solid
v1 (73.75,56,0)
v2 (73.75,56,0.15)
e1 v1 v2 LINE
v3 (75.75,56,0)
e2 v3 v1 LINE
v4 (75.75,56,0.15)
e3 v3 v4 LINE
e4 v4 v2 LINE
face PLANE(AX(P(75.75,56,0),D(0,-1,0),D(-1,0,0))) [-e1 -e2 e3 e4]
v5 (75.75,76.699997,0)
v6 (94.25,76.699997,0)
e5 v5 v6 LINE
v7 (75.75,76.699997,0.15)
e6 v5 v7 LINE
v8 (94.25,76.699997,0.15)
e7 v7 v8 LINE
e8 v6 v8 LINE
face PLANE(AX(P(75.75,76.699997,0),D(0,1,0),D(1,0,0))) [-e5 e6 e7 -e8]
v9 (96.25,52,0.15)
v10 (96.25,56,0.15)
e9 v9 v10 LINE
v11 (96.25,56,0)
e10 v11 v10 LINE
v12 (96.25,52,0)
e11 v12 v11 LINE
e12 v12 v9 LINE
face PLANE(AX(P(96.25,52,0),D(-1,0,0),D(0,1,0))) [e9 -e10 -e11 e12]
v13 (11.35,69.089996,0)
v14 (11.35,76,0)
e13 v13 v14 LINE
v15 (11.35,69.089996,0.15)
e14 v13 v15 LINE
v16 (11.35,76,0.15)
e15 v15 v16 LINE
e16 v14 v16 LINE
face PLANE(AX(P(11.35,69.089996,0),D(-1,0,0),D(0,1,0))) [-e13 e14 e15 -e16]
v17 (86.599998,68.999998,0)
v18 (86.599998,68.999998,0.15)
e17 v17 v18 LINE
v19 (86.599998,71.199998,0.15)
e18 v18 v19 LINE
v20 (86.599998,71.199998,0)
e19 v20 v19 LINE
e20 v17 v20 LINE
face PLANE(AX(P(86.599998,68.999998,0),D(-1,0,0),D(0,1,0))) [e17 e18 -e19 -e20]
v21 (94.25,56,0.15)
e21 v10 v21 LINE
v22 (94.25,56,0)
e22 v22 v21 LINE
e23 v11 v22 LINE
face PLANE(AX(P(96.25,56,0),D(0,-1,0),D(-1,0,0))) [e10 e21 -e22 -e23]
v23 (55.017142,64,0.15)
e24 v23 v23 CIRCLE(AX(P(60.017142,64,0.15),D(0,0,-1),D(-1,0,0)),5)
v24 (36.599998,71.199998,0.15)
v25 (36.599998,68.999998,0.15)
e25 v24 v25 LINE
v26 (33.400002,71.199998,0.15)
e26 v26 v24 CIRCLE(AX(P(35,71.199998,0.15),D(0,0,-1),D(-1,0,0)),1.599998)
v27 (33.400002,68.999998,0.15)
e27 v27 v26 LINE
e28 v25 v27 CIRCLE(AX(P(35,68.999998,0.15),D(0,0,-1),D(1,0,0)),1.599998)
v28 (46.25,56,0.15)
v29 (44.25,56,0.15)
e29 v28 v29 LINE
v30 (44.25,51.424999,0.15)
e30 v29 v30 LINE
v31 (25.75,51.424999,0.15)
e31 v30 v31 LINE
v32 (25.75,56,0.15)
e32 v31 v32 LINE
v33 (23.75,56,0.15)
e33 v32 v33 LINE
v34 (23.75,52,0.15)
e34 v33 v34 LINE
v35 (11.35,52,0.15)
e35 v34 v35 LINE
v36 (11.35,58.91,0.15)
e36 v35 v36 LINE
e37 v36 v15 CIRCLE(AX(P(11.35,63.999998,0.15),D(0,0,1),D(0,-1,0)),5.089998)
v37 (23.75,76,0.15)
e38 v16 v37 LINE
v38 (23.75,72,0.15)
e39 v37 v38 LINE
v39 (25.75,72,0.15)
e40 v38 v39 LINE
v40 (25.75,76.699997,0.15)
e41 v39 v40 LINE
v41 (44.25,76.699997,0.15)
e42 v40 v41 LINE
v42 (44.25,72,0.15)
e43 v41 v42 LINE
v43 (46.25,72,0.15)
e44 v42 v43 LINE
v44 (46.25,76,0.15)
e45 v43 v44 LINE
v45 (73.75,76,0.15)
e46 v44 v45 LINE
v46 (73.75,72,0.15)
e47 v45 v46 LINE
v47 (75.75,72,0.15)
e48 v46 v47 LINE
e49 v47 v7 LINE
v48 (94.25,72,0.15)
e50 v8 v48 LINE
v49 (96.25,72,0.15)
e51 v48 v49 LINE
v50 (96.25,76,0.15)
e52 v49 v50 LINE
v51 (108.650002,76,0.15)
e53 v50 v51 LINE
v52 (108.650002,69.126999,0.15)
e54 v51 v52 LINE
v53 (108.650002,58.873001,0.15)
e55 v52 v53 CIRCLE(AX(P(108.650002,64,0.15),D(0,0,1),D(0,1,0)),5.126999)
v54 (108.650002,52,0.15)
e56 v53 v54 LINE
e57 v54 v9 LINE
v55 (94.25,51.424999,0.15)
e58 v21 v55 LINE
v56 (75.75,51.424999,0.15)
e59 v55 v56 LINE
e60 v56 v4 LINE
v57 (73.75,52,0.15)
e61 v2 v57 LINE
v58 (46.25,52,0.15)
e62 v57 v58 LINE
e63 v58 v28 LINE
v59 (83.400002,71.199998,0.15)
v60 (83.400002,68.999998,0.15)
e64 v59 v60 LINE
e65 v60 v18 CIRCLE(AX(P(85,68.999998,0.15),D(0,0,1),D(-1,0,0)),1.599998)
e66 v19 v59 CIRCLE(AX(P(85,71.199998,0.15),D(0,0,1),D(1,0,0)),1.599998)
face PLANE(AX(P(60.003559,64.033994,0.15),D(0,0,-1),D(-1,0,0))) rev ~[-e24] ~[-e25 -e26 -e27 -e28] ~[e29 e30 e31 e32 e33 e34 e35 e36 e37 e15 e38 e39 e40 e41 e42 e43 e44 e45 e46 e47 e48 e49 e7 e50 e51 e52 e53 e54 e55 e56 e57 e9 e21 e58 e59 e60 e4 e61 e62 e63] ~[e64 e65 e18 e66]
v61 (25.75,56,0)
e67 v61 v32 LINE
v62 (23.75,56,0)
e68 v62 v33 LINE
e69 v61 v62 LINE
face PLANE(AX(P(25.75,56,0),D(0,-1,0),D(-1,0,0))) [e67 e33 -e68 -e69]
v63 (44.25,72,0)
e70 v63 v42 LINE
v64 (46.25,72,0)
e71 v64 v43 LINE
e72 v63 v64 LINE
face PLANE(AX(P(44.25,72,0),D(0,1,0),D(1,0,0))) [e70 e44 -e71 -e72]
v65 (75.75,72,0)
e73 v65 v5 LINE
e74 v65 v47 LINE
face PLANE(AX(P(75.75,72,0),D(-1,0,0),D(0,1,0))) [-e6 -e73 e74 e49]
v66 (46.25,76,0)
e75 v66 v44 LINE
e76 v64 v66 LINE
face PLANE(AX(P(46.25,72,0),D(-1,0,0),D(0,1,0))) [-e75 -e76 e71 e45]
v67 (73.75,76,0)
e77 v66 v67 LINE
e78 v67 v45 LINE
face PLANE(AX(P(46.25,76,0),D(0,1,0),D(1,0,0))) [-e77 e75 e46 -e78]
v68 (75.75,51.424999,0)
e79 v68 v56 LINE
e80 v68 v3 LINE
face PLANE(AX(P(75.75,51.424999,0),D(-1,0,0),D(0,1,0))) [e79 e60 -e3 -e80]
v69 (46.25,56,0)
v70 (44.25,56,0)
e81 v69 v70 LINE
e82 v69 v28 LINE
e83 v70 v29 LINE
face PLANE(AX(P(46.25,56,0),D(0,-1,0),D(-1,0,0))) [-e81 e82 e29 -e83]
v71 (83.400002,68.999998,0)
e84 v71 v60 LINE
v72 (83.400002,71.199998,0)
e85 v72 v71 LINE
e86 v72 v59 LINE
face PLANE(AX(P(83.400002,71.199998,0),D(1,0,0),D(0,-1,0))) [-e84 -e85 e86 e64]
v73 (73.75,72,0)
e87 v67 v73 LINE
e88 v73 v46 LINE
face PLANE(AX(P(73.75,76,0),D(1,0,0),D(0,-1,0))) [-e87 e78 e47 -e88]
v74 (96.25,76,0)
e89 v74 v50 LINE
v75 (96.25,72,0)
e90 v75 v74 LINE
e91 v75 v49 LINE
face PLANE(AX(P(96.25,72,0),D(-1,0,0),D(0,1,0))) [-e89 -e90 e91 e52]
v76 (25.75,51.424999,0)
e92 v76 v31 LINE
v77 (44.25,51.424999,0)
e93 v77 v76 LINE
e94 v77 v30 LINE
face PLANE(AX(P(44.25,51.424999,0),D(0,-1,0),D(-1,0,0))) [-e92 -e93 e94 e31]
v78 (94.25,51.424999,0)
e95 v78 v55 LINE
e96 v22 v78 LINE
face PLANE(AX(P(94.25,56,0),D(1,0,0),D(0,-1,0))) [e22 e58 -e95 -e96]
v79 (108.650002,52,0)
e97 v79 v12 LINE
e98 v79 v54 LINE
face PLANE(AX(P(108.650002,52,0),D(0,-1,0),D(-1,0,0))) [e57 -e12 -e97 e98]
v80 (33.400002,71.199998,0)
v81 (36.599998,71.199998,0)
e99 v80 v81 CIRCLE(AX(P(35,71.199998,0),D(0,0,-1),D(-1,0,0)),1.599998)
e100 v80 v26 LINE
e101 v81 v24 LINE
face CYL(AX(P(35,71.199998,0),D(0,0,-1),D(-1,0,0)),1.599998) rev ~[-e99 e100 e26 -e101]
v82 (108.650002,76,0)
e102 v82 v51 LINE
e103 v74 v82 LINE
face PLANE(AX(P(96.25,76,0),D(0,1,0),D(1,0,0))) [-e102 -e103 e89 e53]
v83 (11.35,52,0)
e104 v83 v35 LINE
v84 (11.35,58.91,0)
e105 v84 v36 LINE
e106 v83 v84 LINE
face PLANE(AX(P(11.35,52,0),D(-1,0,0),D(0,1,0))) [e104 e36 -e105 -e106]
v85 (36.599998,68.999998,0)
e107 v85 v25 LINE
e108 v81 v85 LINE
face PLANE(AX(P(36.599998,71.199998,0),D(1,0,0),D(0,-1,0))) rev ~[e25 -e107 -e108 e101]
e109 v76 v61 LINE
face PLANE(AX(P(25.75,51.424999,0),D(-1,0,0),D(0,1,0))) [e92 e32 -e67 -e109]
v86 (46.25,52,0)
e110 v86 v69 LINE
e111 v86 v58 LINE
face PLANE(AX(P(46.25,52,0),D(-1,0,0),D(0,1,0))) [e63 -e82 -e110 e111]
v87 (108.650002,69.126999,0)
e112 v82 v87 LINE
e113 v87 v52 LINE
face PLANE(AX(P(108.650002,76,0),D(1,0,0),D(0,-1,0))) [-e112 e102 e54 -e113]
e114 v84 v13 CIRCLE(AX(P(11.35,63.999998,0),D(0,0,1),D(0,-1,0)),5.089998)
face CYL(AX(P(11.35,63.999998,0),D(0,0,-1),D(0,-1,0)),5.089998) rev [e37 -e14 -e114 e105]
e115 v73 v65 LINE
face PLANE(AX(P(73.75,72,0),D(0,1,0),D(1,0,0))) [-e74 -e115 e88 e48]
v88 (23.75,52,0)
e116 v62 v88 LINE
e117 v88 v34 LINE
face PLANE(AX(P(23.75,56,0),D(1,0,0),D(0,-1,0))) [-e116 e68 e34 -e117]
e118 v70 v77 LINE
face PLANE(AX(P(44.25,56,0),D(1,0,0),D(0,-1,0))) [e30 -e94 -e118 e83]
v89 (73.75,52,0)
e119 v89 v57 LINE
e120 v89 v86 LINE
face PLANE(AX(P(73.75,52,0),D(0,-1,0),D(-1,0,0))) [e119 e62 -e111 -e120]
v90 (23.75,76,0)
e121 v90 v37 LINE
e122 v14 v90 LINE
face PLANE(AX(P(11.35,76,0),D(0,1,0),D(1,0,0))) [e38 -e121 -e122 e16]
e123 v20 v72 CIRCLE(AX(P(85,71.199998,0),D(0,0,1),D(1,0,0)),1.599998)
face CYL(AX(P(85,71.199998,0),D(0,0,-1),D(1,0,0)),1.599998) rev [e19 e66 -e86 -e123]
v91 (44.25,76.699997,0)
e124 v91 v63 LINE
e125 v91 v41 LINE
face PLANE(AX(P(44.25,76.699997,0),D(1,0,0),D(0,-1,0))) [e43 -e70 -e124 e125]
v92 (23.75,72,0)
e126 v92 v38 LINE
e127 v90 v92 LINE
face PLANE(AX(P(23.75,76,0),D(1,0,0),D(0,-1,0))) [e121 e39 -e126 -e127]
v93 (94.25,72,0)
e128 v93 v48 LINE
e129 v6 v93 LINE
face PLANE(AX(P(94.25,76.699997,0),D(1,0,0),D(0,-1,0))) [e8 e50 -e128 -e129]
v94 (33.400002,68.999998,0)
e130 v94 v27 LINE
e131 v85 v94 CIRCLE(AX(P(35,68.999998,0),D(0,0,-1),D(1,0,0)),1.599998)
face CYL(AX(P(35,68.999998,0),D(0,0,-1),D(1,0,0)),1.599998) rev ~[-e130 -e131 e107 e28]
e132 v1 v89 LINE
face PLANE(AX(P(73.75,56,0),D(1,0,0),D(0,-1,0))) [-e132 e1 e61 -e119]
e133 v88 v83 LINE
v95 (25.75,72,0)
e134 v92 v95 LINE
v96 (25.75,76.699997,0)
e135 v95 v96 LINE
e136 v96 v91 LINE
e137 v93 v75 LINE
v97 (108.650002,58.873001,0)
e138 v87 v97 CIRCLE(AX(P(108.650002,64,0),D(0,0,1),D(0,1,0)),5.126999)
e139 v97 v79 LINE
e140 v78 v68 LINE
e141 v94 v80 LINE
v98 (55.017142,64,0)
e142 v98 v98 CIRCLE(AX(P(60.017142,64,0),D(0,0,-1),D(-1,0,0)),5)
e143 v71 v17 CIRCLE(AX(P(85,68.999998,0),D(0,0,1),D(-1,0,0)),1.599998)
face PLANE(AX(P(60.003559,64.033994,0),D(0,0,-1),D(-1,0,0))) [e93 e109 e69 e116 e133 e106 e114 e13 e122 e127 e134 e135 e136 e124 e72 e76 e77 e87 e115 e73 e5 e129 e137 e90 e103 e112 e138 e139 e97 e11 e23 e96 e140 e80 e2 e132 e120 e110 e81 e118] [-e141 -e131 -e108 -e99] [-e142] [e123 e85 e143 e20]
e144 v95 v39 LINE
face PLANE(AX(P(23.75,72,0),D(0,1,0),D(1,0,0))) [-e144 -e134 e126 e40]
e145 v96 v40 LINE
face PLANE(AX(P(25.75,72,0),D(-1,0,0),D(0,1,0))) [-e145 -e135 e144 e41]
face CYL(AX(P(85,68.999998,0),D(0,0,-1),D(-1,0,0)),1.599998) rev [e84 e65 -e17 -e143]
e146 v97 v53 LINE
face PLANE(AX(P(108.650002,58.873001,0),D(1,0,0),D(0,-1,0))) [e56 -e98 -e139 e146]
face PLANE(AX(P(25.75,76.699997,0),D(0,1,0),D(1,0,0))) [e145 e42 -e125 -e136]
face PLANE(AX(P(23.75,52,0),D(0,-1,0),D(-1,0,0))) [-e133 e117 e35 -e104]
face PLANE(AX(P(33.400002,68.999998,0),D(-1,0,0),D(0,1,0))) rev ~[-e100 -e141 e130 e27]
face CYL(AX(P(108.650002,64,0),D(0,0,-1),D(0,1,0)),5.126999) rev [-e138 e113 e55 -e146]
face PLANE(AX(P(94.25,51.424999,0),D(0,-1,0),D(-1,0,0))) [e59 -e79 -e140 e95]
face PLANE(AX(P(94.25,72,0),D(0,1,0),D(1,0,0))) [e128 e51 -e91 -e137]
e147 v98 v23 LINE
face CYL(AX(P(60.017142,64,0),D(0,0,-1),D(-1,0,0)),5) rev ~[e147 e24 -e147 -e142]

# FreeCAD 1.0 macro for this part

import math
import FreeCAD as App
import Part
import Sketcher
from FreeCAD import Vector

doc = App.newDocument("Part")
body = doc.addObject("PartDesign::Body", "Body")

# Sketch on XY plane
sketch1 = body.newObject("Sketcher::SketchObject", "Sketch")
sketch1.AttachmentSupport = (doc.getObject("XY_Plane"), [""])
sketch1.MapMode = "FlatFace"
sketch1.addGeometry([
    Part.LineSegment(Vector(94.2, 76.7, 0), Vector(94.2, 72, 0)),  # 0
    Part.LineSegment(Vector(94.2, 72, 0), Vector(96.2, 72, 0)),  # 1
    Part.LineSegment(Vector(96.2, 72, 0), Vector(96.2, 76, 0)),  # 2
    Part.LineSegment(Vector(96.2, 76, 0), Vector(108.7, 76, 0)),  # 3
    Part.LineSegment(Vector(108.7, 76, 0), Vector(108.7, 69.1, 0)),  # 4
    Part.ArcOfCircle(Part.Circle(Vector(108.7, 64, 0), Vector(0, 0, 1), 5.1), math.radians(90), math.radians(270)),  # 5
    Part.LineSegment(Vector(108.7, 58.9, 0), Vector(108.7, 52, 0)),  # 6
    Part.LineSegment(Vector(108.7, 52, 0), Vector(96.2, 52, 0)),  # 7
    Part.LineSegment(Vector(96.2, 52, 0), Vector(96.2, 56, 0)),  # 8
    Part.LineSegment(Vector(96.2, 56, 0), Vector(94.2, 56, 0)),  # 9
    Part.LineSegment(Vector(94.2, 56, 0), Vector(94.2, 51.4, 0)),  # 10
    Part.LineSegment(Vector(94.2, 51.4, 0), Vector(75.8, 51.4, 0)),  # 11
    Part.LineSegment(Vector(75.8, 51.4, 0), Vector(75.8, 56, 0)),  # 12
    Part.LineSegment(Vector(75.8, 56, 0), Vector(73.8, 56, 0)),  # 13
    Part.LineSegment(Vector(73.8, 56, 0), Vector(73.8, 52, 0)),  # 14
    Part.LineSegment(Vector(73.8, 52, 0), Vector(46.2, 52, 0)),  # 15
    Part.LineSegment(Vector(46.2, 52, 0), Vector(46.2, 56, 0)),  # 16
    Part.LineSegment(Vector(46.2, 56, 0), Vector(44.2, 56, 0)),  # 17
    Part.LineSegment(Vector(44.2, 56, 0), Vector(44.2, 51.4, 0)),  # 18
    Part.LineSegment(Vector(44.2, 51.4, 0), Vector(25.8, 51.4, 0)),  # 19
    Part.LineSegment(Vector(25.8, 51.4, 0), Vector(25.8, 56, 0)),  # 20
    Part.LineSegment(Vector(25.8, 56, 0), Vector(23.8, 56, 0)),  # 21
    Part.LineSegment(Vector(23.8, 56, 0), Vector(23.8, 52, 0)),  # 22
    Part.LineSegment(Vector(23.8, 52, 0), Vector(11.4, 52, 0)),  # 23
    Part.LineSegment(Vector(11.4, 52, 0), Vector(11.4, 58.9, 0)),  # 24
    Part.ArcOfCircle(Part.Circle(Vector(11.4, 64, 0), Vector(0, 0, 1), 5.1), math.radians(-90), math.radians(90)),  # 25
    Part.LineSegment(Vector(11.4, 69.1, 0), Vector(11.4, 76, 0)),  # 26
    Part.LineSegment(Vector(11.4, 76, 0), Vector(23.8, 76, 0)),  # 27
    Part.LineSegment(Vector(23.8, 76, 0), Vector(23.8, 72, 0)),  # 28
    Part.LineSegment(Vector(23.8, 72, 0), Vector(25.8, 72, 0)),  # 29
    Part.LineSegment(Vector(25.8, 72, 0), Vector(25.8, 76.7, 0)),  # 30
    Part.LineSegment(Vector(25.8, 76.7, 0), Vector(44.2, 76.7, 0)),  # 31
    Part.LineSegment(Vector(44.2, 76.7, 0), Vector(44.2, 72, 0)),  # 32
    Part.LineSegment(Vector(44.2, 72, 0), Vector(46.2, 72, 0)),  # 33
    Part.LineSegment(Vector(46.2, 72, 0), Vector(46.2, 76, 0)),  # 34
    Part.LineSegment(Vector(46.2, 76, 0), Vector(73.8, 76, 0)),  # 35
    Part.LineSegment(Vector(73.8, 76, 0), Vector(73.8, 72, 0)),  # 36
    Part.LineSegment(Vector(73.8, 72, 0), Vector(75.8, 72, 0)),  # 37
    Part.LineSegment(Vector(75.8, 72, 0), Vector(75.8, 76.7, 0)),  # 38
    Part.LineSegment(Vector(75.8, 76.7, 0), Vector(94.2, 76.7, 0)),  # 39
    Part.Circle(Vector(60, 64, 0), Vector(0, 0, 1), 5),  # 40
    Part.ArcOfCircle(Part.Circle(Vector(85, 71.2, 0), Vector(0, 0, 1), 1.6), math.radians(0), math.radians(180)),  # 41
    Part.LineSegment(Vector(83.4, 71.2, 0), Vector(83.4, 69, 0)),  # 42
    Part.ArcOfCircle(Part.Circle(Vector(85, 69, 0), Vector(0, 0, 1), 1.6), math.radians(180), math.radians(360)),  # 43
    Part.LineSegment(Vector(86.6, 69, 0), Vector(86.6, 71.2, 0)),  # 44
    Part.LineSegment(Vector(33.4, 71.2, 0), Vector(33.4, 69, 0)),  # 45
    Part.ArcOfCircle(Part.Circle(Vector(35, 69, 0), Vector(0, 0, 1), 1.6), math.radians(180), math.radians(360)),  # 46
    Part.LineSegment(Vector(36.6, 69, 0), Vector(36.6, 71.2, 0)),  # 47
    Part.ArcOfCircle(Part.Circle(Vector(35, 71.2, 0), Vector(0, 0, 1), 1.6), math.radians(0), math.radians(180)),  # 48
], False)
sketch1.addConstraint([
    Sketcher.Constraint("Coincident", 0, 2, 1, 1),
    Sketcher.Constraint("Coincident", 1, 2, 2, 1),
    Sketcher.Constraint("Coincident", 2, 2, 3, 1),
    Sketcher.Constraint("Coincident", 3, 2, 4, 1),
    Sketcher.Constraint("Coincident", 4, 2, 5, 1),
    Sketcher.Constraint("Coincident", 5, 2, 6, 1),
    Sketcher.Constraint("Coincident", 6, 2, 7, 1),
    Sketcher.Constraint("Coincident", 7, 2, 8, 1),
    Sketcher.Constraint("Coincident", 8, 2, 9, 1),
    Sketcher.Constraint("Coincident", 9, 2, 10, 1),
    Sketcher.Constraint("Coincident", 10, 2, 11, 1),
    Sketcher.Constraint("Coincident", 11, 2, 12, 1),
    Sketcher.Constraint("Coincident", 12, 2, 13, 1),
    Sketcher.Constraint("Coincident", 13, 2, 14, 1),
    Sketcher.Constraint("Coincident", 14, 2, 15, 1),
    Sketcher.Constraint("Coincident", 15, 2, 16, 1),
    Sketcher.Constraint("Coincident", 16, 2, 17, 1),
    Sketcher.Constraint("Coincident", 17, 2, 18, 1),
    Sketcher.Constraint("Coincident", 18, 2, 19, 1),
    Sketcher.Constraint("Coincident", 19, 2, 20, 1),
    Sketcher.Constraint("Coincident", 20, 2, 21, 1),
    Sketcher.Constraint("Coincident", 21, 2, 22, 1),
    Sketcher.Constraint("Coincident", 22, 2, 23, 1),
    Sketcher.Constraint("Coincident", 23, 2, 24, 1),
    Sketcher.Constraint("Coincident", 24, 2, 25, 1),
    Sketcher.Constraint("Coincident", 25, 2, 26, 1),
    Sketcher.Constraint("Coincident", 26, 2, 27, 1),
    Sketcher.Constraint("Coincident", 27, 2, 28, 1),
    Sketcher.Constraint("Coincident", 28, 2, 29, 1),
    Sketcher.Constraint("Coincident", 29, 2, 30, 1),
    Sketcher.Constraint("Coincident", 30, 2, 31, 1),
    Sketcher.Constraint("Coincident", 31, 2, 32, 1),
    Sketcher.Constraint("Coincident", 32, 2, 33, 1),
    Sketcher.Constraint("Coincident", 33, 2, 34, 1),
    Sketcher.Constraint("Coincident", 34, 2, 35, 1),
    Sketcher.Constraint("Coincident", 35, 2, 36, 1),
    Sketcher.Constraint("Coincident", 36, 2, 37, 1),
    Sketcher.Constraint("Coincident", 37, 2, 38, 1),
    Sketcher.Constraint("Coincident", 38, 2, 39, 1),
    Sketcher.Constraint("Coincident", 39, 2, 0, 1),
    Sketcher.Constraint("Tangent", 41, 2, 42, 1),
    Sketcher.Constraint("Tangent", 42, 2, 43, 1),
    Sketcher.Constraint("Tangent", 43, 2, 44, 1),
    Sketcher.Constraint("Tangent", 44, 2, 41, 1),
    Sketcher.Constraint("Tangent", 45, 2, 46, 1),
    Sketcher.Constraint("Tangent", 46, 2, 47, 1),
    Sketcher.Constraint("Tangent", 47, 2, 48, 1),
    Sketcher.Constraint("Tangent", 48, 2, 45, 1),
    Sketcher.Constraint("Vertical", 0),
    Sketcher.Constraint("Horizontal", 1),
    Sketcher.Constraint("Vertical", 2),
    Sketcher.Constraint("Horizontal", 3),
    Sketcher.Constraint("Vertical", 4),
    Sketcher.Constraint("Vertical", 6),
    Sketcher.Constraint("Horizontal", 7),
    Sketcher.Constraint("Vertical", 8),
    Sketcher.Constraint("Horizontal", 9),
    Sketcher.Constraint("Vertical", 10),
    Sketcher.Constraint("Horizontal", 11),
    Sketcher.Constraint("Vertical", 12),
    Sketcher.Constraint("Horizontal", 13),
    Sketcher.Constraint("Vertical", 14),
    Sketcher.Constraint("Horizontal", 15),
    Sketcher.Constraint("Vertical", 16),
    Sketcher.Constraint("Horizontal", 17),
    Sketcher.Constraint("Vertical", 18),
    Sketcher.Constraint("Horizontal", 19),
    Sketcher.Constraint("Vertical", 20),
    Sketcher.Constraint("Horizontal", 21),
    Sketcher.Constraint("Vertical", 22),
    Sketcher.Constraint("Horizontal", 23),
    Sketcher.Constraint("Vertical", 24),
    Sketcher.Constraint("Vertical", 26),
    Sketcher.Constraint("Horizontal", 27),
    Sketcher.Constraint("Vertical", 28),
    Sketcher.Constraint("Horizontal", 29),
    Sketcher.Constraint("Vertical", 30),
    Sketcher.Constraint("Horizontal", 31),
    Sketcher.Constraint("Vertical", 32),
    Sketcher.Constraint("Horizontal", 33),
    Sketcher.Constraint("Vertical", 34),
    Sketcher.Constraint("Horizontal", 35),
    Sketcher.Constraint("Vertical", 36),
    Sketcher.Constraint("Horizontal", 37),
    Sketcher.Constraint("Vertical", 38),
    Sketcher.Constraint("Horizontal", 39),
    Sketcher.Constraint("Vertical", 42),
    Sketcher.Constraint("Vertical", 44),
    Sketcher.Constraint("Vertical", 45),
    Sketcher.Constraint("Vertical", 47),
    Sketcher.Constraint("Equal", 43, 46),
    Sketcher.Constraint("Horizontal", 5, 3, 25, 3),
    Sketcher.Constraint("Horizontal", 25, 3, 40, 3),
    Sketcher.Constraint("Horizontal", 43, 3, 46, 3),
    Sketcher.Constraint("Horizontal", 41, 3, 48, 3),
    Sketcher.Constraint("Horizontal", 9, 2, 12, 2),
    Sketcher.Constraint("Horizontal", 7, 2, 14, 2),
    Sketcher.Constraint("Horizontal", 13, 2, 16, 2),
    Sketcher.Constraint("Horizontal", 11, 2, 18, 2),
    Sketcher.Constraint("Horizontal", 17, 2, 20, 2),
    Sketcher.Constraint("Horizontal", 15, 2, 22, 2),
    Sketcher.Constraint("Horizontal", 3, 2, 26, 2),
    Sketcher.Constraint("Horizontal", 1, 2, 28, 2),
    Sketcher.Constraint("Horizontal", 29, 2, 32, 2),
    Sketcher.Constraint("Horizontal", 27, 2, 34, 2),
    Sketcher.Constraint("Horizontal", 33, 2, 36, 2),
    Sketcher.Constraint("Horizontal", 31, 2, 38, 2),
    Sketcher.Constraint("Vertical", 5, 3, 3, 2),
    Sketcher.Constraint("Vertical", 4, 2, 5, 2),
    Sketcher.Constraint("Vertical", 2, 2, 7, 2),
    Sketcher.Constraint("Vertical", 0, 2, 9, 2),
    Sketcher.Constraint("Vertical", 25, 3, 23, 2),
    Sketcher.Constraint("Vertical", 24, 2, 25, 2),
    Sketcher.Constraint("Vertical", 22, 2, 27, 2),
    Sketcher.Constraint("Vertical", 20, 2, 29, 2),
    Sketcher.Constraint("Vertical", 18, 2, 31, 2),
    Sketcher.Constraint("Vertical", 16, 2, 33, 2),
    Sketcher.Constraint("Vertical", 14, 2, 35, 2),
    Sketcher.Constraint("Vertical", 12, 2, 37, 2),
    Sketcher.Constraint("Equal", 9, 13),
    Sketcher.Constraint("Equal", 13, 17),
    Sketcher.Constraint("Equal", 11, 19),
    Sketcher.Constraint("Equal", 17, 21),
    Sketcher.Constraint("Equal", 7, 23),
    Sketcher.Constraint("Equal", 4, 6),
    Sketcher.Constraint("Equal", 2, 8),
    Sketcher.Constraint("Diameter", 40, 10.0),
    Sketcher.Constraint("Radius", 41, 1.599998),
    Sketcher.Constraint("DistanceX", 1, 1, 1, 2, 2.0),
    Sketcher.Constraint("DistanceY", 2, 1, 2, 2, 4.0),
    Sketcher.Constraint("Radius", 25, 5.089998),
    Sketcher.Constraint("DistanceX", 3, 1, 3, 2, 12.400002),
    Sketcher.Constraint("DistanceX", 11, 2, 11, 1, 18.5),
    Sketcher.Constraint("DistanceX", 15, 2, 15, 1, 27.5),
    Sketcher.Constraint("DistanceY", 42, 2, 42, 1, 2.2),
    Sketcher.Constraint("DistanceY", -1, 1, 5, 3, 64.0),
    Sketcher.Constraint("DistanceX", -1, 1, 41, 3, 85.0),
    Sketcher.Constraint("DistanceY", -1, 1, 43, 3, 68.999998),
    Sketcher.Constraint("DistanceX", -1, 1, 46, 3, 35.0),
    Sketcher.Constraint("DistanceY", -1, 1, 0, 2, 72.0),
    Sketcher.Constraint("Radius", 5, 5.126999),
    Sketcher.Constraint("DistanceY", 48, 3, 30, 2, 5.499998),
    Sketcher.Constraint("DistanceY", 10, 2, 10, 1, 4.575001),
    Sketcher.Constraint("DistanceX", -1, 1, 5, 3, 108.650002),
    Sketcher.Constraint("DistanceX", 40, 3, 5, 3, 48.632859),
])
pad1 = body.newObject("PartDesign::Pad", "Pad")
pad1.Profile = sketch1
pad1.Length = 0.15

doc.recompute()
